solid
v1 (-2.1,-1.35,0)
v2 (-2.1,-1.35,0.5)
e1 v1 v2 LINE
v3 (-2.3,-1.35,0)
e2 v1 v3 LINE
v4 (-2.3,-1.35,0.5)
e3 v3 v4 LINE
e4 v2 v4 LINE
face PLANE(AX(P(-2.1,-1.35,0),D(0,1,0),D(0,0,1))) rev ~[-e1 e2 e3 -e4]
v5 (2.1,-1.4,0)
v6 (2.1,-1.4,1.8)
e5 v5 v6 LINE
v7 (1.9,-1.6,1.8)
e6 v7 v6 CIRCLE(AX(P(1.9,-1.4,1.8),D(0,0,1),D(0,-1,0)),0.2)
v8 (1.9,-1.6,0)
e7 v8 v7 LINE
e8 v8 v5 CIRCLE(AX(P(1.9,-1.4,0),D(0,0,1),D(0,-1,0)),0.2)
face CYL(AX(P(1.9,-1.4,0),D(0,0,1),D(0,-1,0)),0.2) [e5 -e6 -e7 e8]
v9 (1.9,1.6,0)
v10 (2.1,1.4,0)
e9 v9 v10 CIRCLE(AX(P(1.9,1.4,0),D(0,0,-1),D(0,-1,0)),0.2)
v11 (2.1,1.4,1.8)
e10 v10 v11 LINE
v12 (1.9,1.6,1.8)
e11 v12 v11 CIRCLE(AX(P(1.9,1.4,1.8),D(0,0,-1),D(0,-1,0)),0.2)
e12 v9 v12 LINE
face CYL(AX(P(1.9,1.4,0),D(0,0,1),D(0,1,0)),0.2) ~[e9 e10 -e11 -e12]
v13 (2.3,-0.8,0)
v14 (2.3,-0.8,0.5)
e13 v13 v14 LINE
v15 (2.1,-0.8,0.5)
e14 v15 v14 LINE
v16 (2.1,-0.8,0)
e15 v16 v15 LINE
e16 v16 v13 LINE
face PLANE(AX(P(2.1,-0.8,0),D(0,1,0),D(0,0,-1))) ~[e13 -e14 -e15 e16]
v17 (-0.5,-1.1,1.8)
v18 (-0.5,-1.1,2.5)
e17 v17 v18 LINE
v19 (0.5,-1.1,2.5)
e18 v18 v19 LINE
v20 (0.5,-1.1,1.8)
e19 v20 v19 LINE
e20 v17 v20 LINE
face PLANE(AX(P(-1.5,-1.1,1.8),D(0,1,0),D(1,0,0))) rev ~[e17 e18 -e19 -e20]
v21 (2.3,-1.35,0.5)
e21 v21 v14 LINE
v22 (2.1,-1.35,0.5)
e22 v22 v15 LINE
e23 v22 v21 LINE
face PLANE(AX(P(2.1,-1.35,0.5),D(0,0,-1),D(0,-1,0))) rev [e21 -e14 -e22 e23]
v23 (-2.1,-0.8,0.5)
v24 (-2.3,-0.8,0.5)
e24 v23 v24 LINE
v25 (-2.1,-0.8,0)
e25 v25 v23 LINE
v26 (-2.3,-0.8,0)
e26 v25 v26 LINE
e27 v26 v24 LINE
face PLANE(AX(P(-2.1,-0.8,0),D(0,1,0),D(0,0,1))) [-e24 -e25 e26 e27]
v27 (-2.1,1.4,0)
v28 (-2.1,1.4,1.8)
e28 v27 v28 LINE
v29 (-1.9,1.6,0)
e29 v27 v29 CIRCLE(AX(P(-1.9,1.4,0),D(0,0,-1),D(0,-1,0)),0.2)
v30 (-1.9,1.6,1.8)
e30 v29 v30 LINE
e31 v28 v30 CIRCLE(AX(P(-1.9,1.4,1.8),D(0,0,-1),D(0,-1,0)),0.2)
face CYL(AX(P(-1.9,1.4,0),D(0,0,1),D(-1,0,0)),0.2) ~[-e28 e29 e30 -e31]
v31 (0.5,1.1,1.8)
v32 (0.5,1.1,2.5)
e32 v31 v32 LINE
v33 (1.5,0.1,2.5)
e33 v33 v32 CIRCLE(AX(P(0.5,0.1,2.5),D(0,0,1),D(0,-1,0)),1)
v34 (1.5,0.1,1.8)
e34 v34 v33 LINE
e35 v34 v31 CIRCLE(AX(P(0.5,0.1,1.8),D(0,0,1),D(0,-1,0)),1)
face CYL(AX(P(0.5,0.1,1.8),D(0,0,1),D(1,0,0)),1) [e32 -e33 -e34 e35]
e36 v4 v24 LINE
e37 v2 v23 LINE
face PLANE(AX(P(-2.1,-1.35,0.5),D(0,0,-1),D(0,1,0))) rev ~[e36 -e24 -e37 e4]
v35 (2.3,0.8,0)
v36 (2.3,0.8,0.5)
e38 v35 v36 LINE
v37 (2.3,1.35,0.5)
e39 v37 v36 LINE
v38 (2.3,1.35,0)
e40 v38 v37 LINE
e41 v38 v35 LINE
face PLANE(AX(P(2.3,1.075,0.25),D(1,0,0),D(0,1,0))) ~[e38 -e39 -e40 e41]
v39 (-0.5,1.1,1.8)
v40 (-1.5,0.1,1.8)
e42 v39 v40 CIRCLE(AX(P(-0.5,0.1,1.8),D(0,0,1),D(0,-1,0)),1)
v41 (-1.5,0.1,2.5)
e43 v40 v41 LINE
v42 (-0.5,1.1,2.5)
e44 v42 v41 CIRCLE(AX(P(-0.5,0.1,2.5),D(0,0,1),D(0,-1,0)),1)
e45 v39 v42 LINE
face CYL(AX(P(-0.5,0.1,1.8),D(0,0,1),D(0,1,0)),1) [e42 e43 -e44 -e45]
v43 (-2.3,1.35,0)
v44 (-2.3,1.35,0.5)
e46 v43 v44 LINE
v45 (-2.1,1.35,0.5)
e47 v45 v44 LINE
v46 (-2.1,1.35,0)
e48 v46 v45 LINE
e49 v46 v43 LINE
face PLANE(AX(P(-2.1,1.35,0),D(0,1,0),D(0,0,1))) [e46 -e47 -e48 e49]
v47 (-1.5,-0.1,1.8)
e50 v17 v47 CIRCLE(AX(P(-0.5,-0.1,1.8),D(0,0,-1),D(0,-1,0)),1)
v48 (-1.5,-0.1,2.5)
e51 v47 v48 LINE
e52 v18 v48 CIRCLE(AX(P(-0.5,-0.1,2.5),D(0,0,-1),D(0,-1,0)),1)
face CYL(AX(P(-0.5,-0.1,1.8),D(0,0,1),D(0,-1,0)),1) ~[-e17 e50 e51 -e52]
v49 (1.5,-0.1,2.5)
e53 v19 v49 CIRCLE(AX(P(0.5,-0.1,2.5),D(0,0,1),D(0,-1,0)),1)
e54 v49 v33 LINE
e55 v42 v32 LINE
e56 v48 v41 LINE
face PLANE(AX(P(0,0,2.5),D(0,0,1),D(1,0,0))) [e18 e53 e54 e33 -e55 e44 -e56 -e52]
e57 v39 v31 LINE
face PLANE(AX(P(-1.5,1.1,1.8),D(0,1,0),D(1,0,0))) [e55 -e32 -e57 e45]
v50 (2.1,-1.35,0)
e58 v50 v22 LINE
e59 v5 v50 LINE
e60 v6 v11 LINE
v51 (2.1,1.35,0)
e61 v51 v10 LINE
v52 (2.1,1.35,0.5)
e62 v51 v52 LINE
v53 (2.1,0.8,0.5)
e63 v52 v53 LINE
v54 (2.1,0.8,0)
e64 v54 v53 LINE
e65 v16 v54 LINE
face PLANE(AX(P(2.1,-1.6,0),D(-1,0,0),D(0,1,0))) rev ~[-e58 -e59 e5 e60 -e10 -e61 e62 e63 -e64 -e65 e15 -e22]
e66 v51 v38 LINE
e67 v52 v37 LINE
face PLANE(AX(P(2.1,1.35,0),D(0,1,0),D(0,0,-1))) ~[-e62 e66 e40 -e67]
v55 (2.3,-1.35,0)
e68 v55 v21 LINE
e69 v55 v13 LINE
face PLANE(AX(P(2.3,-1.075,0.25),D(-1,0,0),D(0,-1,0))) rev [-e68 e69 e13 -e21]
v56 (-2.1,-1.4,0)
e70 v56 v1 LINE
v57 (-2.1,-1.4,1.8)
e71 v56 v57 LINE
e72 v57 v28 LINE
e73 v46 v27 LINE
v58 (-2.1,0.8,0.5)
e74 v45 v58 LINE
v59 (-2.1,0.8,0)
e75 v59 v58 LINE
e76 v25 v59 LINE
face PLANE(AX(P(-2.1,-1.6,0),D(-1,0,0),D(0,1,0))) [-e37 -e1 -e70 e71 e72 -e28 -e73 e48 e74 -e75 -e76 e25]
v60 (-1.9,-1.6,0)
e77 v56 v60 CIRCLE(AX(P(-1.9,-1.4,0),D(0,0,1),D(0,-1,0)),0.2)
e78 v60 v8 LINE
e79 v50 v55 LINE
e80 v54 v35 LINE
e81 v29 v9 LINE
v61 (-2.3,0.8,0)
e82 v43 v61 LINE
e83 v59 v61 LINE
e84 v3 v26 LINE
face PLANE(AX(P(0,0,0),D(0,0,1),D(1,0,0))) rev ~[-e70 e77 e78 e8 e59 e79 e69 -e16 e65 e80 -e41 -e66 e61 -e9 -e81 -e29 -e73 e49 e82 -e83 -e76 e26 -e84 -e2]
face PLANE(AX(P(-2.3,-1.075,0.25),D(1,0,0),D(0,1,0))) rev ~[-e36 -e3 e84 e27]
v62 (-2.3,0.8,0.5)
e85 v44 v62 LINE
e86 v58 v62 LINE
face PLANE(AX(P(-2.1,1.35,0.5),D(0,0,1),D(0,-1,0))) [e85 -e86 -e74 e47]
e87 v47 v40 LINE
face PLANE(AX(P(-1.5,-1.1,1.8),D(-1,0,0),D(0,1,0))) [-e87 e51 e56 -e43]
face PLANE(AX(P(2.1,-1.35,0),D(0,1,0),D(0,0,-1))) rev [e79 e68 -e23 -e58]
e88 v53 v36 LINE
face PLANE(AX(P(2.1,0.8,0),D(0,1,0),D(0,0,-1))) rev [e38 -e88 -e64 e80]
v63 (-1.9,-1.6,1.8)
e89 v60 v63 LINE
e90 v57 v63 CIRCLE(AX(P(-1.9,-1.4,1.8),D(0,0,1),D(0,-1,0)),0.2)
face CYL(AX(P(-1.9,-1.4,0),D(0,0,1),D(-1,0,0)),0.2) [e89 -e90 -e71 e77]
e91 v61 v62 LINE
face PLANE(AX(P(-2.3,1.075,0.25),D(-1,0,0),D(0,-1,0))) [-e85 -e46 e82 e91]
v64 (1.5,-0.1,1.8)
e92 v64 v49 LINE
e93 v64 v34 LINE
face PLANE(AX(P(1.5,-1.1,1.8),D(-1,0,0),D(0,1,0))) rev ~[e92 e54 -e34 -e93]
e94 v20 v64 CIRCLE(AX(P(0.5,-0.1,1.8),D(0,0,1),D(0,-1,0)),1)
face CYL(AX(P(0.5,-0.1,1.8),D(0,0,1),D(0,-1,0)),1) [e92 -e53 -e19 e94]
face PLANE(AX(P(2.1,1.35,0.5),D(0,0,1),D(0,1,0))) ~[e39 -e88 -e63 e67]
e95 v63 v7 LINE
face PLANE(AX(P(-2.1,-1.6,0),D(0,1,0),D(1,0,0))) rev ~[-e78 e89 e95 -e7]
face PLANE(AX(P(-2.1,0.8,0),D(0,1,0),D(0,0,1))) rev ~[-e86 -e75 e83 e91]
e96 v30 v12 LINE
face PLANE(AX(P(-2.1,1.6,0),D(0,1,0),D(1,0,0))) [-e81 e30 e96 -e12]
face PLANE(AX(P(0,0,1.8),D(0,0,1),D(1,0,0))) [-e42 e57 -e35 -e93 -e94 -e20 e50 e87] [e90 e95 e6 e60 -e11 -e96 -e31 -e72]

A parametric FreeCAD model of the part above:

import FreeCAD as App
import Part
import Sketcher

V = App.Vector
Q = App.Units.Quantity


def edges_at(feature, points):
    """Names of the edges that pass closest to the given points."""
    edges = feature.Shape.Edges
    near = lambda p: min(range(len(edges)), key=lambda i: edges[i].distToShape(Part.Vertex(*p))[0])
    return sorted({f"Edge{near(p) + 1}" for p in points})


def add_polygon(sketch, points):
    """Adds a closed chain of lines whose ends are joined by coincident constraints."""
    first, n = sketch.GeometryCount, len(points)
    for a, b in zip(points, points[1:] + points[:1]):
        sketch.addGeometry(Part.LineSegment(App.Vector(*a, 0), App.Vector(*b, 0)), False)
    for i in range(n):
        sketch.addConstraint(Sketcher.Constraint("Coincident", first + i, 2, first + (i + 1) % n, 1))

doc = App.newDocument("Part")
body = doc.addObject("PartDesign::Body", "Body")

# Sketch on XY plane
sketch1 = doc.addObject("Sketcher::SketchObject", "Sketch")
body.addObject(sketch1)
sketch1.AttachmentSupport = (doc.XY_Plane, [""])
sketch1.MapMode = "FlatFace"
add_polygon(sketch1, [(-2.1, 1.6), (-2.1, -1.6), (2.1, -1.6), (2.1, 1.6)])  # lines 0-3
sketch1.addConstraint(Sketcher.Constraint("Vertical", 0))
sketch1.addConstraint(Sketcher.Constraint("Horizontal", 1))
sketch1.addConstraint(Sketcher.Constraint("Vertical", 2))
sketch1.addConstraint(Sketcher.Constraint("Horizontal", 3))
sketch1.addConstraint(Sketcher.Constraint("Symmetric", 0, 2, 2, 2, -1, 1))
sketch1.addConstraint(Sketcher.Constraint("DistanceX", 1, 1, 1, 2, Q("4.2 mm")))
sketch1.addConstraint(Sketcher.Constraint("DistanceY", 0, 2, 0, 1, Q("3.2 mm")))
pad1 = doc.addObject("PartDesign::Pad", "Pad")
body.addObject(pad1)
pad1.Profile = sketch1
pad1.Length = 1.8
doc.recompute()

fillet = doc.addObject("PartDesign::Fillet", "Fillet")
body.addObject(fillet)
fillet.Base = (pad1, edges_at(pad1, [(-2.1, -1.6, 0.9)]))
fillet.Radius = 0.2
doc.recompute()

fillet2 = doc.addObject("PartDesign::Fillet", "Fillet001")
body.addObject(fillet2)
fillet2.Base = (fillet, edges_at(fillet, [(2.1, -1.6, 0.9)]))
fillet2.Radius = 0.2
doc.recompute()

fillet3 = doc.addObject("PartDesign::Fillet", "Fillet002")
body.addObject(fillet3)
fillet3.Base = (fillet2, edges_at(fillet2, [(-2.1, 1.6, 0.9)]))
fillet3.Radius = 0.2
doc.recompute()

fillet4 = doc.addObject("PartDesign::Fillet", "Fillet003")
body.addObject(fillet4)
fillet4.Base = (fillet3, edges_at(fillet3, [(2.1, 1.6, 0.9)]))
fillet4.Radius = 0.2

# Sketch on XY plane
sketch2 = doc.addObject("Sketcher::SketchObject", "Sketch001")
body.addObject(sketch2)
sketch2.AttachmentSupport = (doc.XY_Plane, [""])
sketch2.MapMode = "FlatFace"
sketch2.AttachmentOffset = App.Placement(V(0, 0, 1.8), App.Rotation())
add_polygon(sketch2, [(-1.5, 1.1), (-1.5, -1.1), (1.5, -1.1), (1.5, 1.1)])  # lines 0-3
sketch2.addConstraint(Sketcher.Constraint("Vertical", 0))
sketch2.addConstraint(Sketcher.Constraint("Horizontal", 1))
sketch2.addConstraint(Sketcher.Constraint("Vertical", 2))
sketch2.addConstraint(Sketcher.Constraint("Horizontal", 3))
sketch2.addConstraint(Sketcher.Constraint("Symmetric", 0, 2, 2, 2, -1, 1))
sketch2.addConstraint(Sketcher.Constraint("DistanceX", 1, 1, 1, 2, Q("3 mm")))
sketch2.addConstraint(Sketcher.Constraint("DistanceY", 0, 2, 0, 1, Q("2.2 mm")))
pad2 = doc.addObject("PartDesign::Pad", "Pad001")
body.addObject(pad2)
pad2.Profile = sketch2
pad2.Length = 0.7
doc.recompute()

fillet5 = doc.addObject("PartDesign::Fillet", "Fillet004")
body.addObject(fillet5)
fillet5.Base = (pad2, edges_at(pad2, [
    (1.5, -1.1, 2.15),
    (-1.5, -1.1, 2.15),
    (-1.5, 1.1, 2.15),
    (1.5, 1.1, 2.15),
]))
fillet5.Radius = 1

# Sketch on YZ plane
sketch3 = doc.addObject("Sketcher::SketchObject", "Sketch002")
body.addObject(sketch3)
sketch3.AttachmentSupport = (doc.YZ_Plane, [""])
sketch3.MapMode = "FlatFace"
sketch3.AttachmentOffset = App.Placement(V(0, 0, -2.1), App.Rotation())
add_polygon(sketch3, [(1.35, 0.5), (1.35, 0), (0.8, 0), (0.8, 0.5)])  # lines 0-3
sketch3.addConstraint(Sketcher.Constraint("Vertical", 0))
sketch3.addConstraint(Sketcher.Constraint("Horizontal", 1))
sketch3.addConstraint(Sketcher.Constraint("Vertical", 2))
sketch3.addConstraint(Sketcher.Constraint("Horizontal", 3))
sketch3.addConstraint(Sketcher.Constraint("PointOnObject", 0, 2, -1))
sketch3.addConstraint(Sketcher.Constraint("DistanceY", 0, 2, 0, 1, Q("0.5 mm")))
sketch3.addConstraint(Sketcher.Constraint("DistanceX", 1, 2, 1, 1, Q("0.55 mm")))
sketch3.addConstraint(Sketcher.Constraint("DistanceX", -1, 1, 1, 2, Q("0.8 mm")))
pad3 = doc.addObject("PartDesign::Pad", "Pad002")
body.addObject(pad3)
pad3.Profile = sketch3
pad3.Length = 0.2
pad3.Reversed = True

# Sketch on YZ plane
sketch4 = doc.addObject("Sketcher::SketchObject", "Sketch003")
body.addObject(sketch4)
sketch4.AttachmentSupport = (doc.YZ_Plane, [""])
sketch4.MapMode = "FlatFace"
sketch4.AttachmentOffset = App.Placement(V(0, 0, -2.1), App.Rotation())
add_polygon(sketch4, [(-1.35, 0.5), (-1.35, 0), (-0.8, 0), (-0.8, 0.5)])  # lines 0-3
sketch4.addConstraint(Sketcher.Constraint("Vertical", 0))
sketch4.addConstraint(Sketcher.Constraint("Horizontal", 1))
sketch4.addConstraint(Sketcher.Constraint("Vertical", 2))
sketch4.addConstraint(Sketcher.Constraint("Horizontal", 3))
sketch4.addConstraint(Sketcher.Constraint("PointOnObject", 0, 2, -1))
sketch4.addConstraint(Sketcher.Constraint("DistanceY", 0, 2, 0, 1, Q("0.5 mm")))
sketch4.addConstraint(Sketcher.Constraint("DistanceX", 1, 1, 1, 2, Q("0.55 mm")))
sketch4.addConstraint(Sketcher.Constraint("DistanceX", 1, 2, -1, 1, Q("0.8 mm")))
pad4 = doc.addObject("PartDesign::Pad", "Pad003")
body.addObject(pad4)
pad4.Profile = sketch4
pad4.Length = 0.2
pad4.Reversed = True
doc.recompute()

mirrored = doc.addObject("PartDesign::Mirrored", "Mirrored")
body.addObject(mirrored)
mirrored.Originals = [pad3, pad4]
mirrored.MirrorPlane = (doc.YZ_Plane, [""])
body.Tip = mirrored

doc.recompute()
